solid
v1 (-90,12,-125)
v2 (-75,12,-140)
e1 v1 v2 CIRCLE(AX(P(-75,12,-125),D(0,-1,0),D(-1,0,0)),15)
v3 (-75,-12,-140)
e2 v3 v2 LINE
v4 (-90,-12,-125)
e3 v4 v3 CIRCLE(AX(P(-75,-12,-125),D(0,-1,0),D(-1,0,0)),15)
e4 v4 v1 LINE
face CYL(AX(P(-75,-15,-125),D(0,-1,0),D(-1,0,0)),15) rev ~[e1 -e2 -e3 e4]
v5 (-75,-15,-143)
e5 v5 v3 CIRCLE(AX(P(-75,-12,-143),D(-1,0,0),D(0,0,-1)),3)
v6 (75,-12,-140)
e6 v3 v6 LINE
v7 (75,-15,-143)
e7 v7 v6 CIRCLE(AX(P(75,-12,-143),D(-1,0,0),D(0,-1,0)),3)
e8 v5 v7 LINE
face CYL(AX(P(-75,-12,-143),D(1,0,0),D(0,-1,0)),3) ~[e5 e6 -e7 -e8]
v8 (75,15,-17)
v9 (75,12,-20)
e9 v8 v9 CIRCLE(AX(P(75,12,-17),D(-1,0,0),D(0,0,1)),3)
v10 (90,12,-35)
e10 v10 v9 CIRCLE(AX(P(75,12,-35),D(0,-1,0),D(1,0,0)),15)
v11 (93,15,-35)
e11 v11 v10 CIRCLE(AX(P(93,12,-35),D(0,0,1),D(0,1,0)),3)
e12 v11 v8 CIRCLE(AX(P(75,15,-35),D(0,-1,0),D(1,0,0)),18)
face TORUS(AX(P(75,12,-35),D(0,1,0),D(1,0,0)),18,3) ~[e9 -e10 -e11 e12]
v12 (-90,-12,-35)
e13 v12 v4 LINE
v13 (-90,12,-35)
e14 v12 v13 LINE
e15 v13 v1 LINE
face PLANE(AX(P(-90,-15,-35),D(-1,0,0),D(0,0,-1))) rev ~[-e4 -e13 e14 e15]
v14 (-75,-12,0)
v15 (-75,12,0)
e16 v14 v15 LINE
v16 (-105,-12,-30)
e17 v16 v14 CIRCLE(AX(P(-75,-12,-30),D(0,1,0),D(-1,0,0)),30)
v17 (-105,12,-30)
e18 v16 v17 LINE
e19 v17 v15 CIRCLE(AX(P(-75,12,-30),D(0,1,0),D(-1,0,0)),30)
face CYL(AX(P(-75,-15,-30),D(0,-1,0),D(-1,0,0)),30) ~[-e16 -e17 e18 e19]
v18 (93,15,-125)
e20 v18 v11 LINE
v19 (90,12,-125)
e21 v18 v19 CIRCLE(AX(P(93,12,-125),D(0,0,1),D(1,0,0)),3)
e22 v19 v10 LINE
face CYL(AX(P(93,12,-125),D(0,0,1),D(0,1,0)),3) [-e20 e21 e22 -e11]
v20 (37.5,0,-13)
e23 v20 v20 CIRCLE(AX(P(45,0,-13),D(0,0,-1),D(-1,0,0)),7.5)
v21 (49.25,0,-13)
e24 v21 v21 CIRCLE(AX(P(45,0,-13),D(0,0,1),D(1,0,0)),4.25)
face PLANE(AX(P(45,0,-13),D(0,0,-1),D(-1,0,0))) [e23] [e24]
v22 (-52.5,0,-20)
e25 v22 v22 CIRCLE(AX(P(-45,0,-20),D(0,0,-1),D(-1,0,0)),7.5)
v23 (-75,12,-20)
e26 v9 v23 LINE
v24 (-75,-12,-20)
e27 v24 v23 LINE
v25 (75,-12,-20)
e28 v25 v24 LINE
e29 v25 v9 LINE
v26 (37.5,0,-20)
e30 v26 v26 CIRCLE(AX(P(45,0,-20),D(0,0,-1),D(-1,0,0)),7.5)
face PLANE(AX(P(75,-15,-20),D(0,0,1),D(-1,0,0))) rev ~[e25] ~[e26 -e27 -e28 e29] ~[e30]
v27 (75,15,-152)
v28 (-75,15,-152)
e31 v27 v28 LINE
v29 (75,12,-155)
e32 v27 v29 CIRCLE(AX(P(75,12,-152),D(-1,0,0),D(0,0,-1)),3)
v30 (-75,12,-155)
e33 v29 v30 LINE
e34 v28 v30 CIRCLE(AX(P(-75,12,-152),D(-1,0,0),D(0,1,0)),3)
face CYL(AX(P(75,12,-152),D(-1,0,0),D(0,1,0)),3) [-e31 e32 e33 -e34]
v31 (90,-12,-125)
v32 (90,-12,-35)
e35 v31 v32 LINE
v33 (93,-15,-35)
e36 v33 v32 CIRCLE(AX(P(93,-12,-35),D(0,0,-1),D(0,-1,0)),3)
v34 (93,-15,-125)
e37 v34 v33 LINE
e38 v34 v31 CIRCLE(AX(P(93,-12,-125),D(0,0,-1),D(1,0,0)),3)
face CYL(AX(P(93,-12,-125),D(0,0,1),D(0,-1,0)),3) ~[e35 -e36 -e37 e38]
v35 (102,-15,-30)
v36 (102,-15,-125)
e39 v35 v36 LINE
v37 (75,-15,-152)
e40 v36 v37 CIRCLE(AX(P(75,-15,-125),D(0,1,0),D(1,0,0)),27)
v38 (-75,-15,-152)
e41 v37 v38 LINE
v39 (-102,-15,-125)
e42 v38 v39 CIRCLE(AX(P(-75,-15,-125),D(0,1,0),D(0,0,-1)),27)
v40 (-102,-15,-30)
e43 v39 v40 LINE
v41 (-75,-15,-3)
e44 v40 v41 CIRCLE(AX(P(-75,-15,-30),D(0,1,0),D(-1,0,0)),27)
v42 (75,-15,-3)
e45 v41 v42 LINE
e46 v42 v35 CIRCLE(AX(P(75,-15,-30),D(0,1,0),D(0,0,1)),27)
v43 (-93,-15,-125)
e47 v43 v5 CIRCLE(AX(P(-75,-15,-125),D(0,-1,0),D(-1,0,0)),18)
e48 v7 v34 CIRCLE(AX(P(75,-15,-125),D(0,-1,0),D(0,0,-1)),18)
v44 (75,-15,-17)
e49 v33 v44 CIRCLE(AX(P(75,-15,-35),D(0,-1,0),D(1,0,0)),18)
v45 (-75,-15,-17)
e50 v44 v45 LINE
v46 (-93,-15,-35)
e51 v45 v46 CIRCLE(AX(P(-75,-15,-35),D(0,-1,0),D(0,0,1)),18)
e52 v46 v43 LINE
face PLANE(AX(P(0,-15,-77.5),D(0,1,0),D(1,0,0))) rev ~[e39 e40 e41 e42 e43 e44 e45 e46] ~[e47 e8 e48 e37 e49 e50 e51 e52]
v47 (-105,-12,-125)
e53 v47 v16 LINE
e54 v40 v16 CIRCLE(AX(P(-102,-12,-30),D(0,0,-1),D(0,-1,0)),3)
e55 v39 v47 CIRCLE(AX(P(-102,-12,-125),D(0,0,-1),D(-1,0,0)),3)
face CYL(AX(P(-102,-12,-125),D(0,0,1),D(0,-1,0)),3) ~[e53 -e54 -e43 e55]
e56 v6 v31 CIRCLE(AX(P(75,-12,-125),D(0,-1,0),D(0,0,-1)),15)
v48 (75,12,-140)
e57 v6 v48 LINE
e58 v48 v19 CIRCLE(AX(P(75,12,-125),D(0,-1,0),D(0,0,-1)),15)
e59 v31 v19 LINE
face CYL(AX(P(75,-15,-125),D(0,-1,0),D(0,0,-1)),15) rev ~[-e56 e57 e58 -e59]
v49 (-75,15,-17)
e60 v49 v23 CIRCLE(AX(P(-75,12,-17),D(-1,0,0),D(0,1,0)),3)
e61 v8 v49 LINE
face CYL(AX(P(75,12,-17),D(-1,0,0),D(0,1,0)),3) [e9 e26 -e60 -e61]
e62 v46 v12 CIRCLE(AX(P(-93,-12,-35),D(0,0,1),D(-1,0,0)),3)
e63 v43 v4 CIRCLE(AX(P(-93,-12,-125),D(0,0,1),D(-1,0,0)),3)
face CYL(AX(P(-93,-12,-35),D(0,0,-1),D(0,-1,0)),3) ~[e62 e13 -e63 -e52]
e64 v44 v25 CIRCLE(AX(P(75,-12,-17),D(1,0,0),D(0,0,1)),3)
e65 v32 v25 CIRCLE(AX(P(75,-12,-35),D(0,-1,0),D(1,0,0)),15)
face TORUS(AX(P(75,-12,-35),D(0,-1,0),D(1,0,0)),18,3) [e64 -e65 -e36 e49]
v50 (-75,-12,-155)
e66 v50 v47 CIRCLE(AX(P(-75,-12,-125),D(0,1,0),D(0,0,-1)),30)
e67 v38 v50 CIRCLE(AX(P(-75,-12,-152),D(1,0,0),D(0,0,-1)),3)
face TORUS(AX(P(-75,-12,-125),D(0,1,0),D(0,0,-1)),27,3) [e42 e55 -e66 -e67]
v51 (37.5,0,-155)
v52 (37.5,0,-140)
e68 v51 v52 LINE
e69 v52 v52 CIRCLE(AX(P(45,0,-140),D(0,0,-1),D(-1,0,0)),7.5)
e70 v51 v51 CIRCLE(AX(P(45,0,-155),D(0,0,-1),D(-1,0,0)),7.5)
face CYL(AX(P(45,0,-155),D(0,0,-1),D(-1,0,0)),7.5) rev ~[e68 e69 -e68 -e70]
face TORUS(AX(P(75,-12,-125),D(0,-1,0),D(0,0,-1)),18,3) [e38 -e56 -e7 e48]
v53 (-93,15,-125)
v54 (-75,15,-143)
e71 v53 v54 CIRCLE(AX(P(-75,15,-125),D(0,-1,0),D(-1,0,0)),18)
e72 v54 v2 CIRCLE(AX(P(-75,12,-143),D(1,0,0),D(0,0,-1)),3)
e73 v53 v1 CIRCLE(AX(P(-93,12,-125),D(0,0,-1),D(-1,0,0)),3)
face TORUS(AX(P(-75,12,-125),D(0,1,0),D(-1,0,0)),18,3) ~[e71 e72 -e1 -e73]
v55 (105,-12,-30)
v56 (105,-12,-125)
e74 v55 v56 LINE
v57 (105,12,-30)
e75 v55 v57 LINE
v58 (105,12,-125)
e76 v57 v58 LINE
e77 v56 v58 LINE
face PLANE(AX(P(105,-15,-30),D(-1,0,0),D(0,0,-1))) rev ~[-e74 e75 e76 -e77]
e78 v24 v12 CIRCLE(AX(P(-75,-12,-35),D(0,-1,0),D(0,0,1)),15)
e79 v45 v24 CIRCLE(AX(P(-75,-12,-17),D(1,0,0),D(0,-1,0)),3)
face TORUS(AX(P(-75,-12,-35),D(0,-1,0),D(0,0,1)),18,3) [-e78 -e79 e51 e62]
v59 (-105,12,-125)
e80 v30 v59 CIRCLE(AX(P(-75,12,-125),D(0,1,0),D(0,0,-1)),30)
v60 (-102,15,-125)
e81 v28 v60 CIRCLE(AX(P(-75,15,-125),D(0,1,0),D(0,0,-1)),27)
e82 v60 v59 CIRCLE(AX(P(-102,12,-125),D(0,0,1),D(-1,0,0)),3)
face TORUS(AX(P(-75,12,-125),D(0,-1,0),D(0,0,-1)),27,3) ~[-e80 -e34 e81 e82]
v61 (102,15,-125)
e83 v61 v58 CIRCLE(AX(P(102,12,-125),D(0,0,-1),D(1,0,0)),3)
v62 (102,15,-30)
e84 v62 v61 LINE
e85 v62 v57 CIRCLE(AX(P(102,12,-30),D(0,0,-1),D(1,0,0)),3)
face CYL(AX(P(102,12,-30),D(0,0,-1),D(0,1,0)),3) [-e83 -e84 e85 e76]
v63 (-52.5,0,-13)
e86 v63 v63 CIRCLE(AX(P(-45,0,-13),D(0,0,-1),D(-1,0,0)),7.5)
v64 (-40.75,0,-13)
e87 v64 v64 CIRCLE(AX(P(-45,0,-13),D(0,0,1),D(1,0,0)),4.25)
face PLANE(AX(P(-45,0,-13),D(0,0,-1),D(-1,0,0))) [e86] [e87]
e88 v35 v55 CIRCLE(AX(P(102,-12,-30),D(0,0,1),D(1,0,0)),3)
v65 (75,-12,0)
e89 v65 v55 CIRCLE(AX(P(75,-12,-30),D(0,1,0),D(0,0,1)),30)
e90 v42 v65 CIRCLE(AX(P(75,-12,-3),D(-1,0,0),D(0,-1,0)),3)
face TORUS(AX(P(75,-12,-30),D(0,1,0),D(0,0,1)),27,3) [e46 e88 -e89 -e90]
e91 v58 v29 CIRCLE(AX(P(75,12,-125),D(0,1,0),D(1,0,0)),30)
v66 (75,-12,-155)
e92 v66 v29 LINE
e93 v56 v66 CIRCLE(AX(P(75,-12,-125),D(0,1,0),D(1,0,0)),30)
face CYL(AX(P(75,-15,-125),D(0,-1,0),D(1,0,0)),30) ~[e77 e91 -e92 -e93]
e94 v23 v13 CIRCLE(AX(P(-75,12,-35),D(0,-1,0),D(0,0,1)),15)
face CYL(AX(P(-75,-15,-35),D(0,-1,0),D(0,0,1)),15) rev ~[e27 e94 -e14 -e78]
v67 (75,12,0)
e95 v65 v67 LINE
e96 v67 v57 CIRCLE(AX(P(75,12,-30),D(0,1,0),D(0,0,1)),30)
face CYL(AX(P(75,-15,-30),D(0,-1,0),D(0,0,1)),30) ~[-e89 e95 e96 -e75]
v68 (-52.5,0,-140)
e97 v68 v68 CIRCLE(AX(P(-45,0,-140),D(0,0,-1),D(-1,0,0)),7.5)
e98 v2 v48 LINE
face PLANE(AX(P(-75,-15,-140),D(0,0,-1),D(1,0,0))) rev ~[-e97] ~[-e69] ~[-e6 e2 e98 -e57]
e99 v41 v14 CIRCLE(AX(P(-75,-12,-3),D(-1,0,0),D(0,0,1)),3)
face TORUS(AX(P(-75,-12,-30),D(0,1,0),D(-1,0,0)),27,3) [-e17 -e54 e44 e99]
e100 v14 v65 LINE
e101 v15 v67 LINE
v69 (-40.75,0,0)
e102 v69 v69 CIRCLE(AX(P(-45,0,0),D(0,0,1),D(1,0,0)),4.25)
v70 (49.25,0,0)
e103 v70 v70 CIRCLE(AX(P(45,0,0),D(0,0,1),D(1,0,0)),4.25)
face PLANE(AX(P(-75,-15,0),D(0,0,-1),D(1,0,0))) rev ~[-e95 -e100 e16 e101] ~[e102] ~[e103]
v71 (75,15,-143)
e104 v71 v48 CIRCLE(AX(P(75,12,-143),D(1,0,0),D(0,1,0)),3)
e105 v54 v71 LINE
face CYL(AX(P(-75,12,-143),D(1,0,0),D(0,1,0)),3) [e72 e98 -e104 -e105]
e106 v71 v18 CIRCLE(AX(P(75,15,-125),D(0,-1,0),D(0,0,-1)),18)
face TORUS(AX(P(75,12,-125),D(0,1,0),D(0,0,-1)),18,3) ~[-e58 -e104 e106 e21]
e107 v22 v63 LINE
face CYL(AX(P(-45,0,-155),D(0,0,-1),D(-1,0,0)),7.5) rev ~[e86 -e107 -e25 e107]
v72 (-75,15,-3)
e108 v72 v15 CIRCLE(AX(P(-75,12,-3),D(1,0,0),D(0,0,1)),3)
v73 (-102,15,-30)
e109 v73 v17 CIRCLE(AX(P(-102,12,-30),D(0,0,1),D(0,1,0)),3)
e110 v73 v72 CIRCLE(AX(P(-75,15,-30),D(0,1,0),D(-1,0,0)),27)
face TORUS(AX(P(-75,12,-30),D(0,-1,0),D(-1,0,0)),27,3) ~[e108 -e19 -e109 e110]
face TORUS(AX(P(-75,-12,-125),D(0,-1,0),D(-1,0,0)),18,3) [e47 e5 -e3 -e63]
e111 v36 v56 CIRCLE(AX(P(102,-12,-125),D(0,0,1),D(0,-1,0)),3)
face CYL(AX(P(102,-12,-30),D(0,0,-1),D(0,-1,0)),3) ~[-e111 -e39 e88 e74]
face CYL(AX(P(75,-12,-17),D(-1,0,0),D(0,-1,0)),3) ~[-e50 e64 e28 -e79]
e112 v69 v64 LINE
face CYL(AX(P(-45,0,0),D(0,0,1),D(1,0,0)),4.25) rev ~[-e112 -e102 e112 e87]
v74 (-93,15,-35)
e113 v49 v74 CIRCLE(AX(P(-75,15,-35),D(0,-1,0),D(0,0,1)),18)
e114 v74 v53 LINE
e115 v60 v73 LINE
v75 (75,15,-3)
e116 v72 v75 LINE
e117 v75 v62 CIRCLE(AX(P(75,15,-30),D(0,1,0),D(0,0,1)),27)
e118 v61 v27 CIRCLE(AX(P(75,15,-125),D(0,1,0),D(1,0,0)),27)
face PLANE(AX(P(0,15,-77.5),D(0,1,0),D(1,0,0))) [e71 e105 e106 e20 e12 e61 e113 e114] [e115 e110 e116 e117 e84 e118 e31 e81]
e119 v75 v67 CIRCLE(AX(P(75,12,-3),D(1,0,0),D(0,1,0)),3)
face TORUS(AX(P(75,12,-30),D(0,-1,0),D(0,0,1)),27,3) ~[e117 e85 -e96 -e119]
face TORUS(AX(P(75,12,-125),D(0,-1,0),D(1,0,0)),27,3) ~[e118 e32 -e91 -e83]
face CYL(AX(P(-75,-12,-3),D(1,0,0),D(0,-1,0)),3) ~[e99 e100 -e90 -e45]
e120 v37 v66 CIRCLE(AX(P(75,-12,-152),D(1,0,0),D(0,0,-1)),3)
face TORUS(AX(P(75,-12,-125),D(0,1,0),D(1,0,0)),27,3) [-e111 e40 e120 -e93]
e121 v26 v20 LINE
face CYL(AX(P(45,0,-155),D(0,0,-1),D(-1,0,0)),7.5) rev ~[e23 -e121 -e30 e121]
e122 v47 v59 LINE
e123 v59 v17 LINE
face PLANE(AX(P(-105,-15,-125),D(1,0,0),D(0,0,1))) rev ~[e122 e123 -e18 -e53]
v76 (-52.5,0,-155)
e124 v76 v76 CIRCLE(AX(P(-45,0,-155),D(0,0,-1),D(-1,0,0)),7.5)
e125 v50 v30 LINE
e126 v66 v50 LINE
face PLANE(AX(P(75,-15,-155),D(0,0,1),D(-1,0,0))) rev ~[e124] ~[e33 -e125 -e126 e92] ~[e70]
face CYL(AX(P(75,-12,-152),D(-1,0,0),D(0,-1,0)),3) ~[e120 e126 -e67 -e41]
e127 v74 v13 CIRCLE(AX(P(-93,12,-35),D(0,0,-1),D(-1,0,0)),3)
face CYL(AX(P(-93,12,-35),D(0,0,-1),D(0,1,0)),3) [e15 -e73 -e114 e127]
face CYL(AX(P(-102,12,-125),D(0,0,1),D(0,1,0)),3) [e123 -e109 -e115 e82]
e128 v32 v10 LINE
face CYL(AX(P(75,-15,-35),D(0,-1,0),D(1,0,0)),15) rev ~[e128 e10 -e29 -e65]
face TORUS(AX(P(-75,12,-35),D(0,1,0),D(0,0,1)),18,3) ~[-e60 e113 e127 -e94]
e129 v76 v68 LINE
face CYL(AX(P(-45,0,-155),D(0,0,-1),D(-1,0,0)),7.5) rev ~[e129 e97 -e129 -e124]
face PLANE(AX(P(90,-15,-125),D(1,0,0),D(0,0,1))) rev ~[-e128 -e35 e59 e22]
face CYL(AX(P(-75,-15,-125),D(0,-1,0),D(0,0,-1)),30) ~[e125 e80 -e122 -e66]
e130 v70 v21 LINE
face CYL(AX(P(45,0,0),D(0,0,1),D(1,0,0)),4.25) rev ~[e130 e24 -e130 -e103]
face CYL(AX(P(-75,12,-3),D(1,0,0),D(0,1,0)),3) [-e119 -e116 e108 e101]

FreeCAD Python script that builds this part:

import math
import FreeCAD as App
import Part
import Sketcher
from FreeCAD import Vector
Q = App.Units.Quantity


def edges_at(feature, points):
    """Names of the edges that pass closest to the given points."""
    edges = feature.Shape.Edges
    near = lambda p: min(range(len(edges)), key=lambda i: edges[i].distToShape(Part.Vertex(*p))[0])
    return sorted({f"Edge{near(p) + 1}" for p in points})

doc = App.newDocument("Part")
body = doc.addObject("PartDesign::Body", "Body")

# Sketch on XZ plane
sketch1 = body.newObject("Sketcher::SketchObject", "Sketch")
sketch1.AttachmentSupport = (doc.getObject("XZ_Plane"), [""])
sketch1.MapMode = "FlatFace"
sketch1.addGeometry(Part.LineSegment(Vector(-75, 0, 0), Vector(75, 0, 0)), False)
sketch1.addGeometry(Part.ArcOfCircle(Part.Circle(Vector(75, -30, 0), Vector(0, 0, 1), 30), math.radians(0), math.radians(90)), False)
sketch1.addGeometry(Part.LineSegment(Vector(105, -30, 0), Vector(105, -125, 0)), False)
sketch1.addGeometry(Part.ArcOfCircle(Part.Circle(Vector(75, -125, 0), Vector(0, 0, 1), 30), math.radians(-90), math.radians(0)), False)
sketch1.addGeometry(Part.LineSegment(Vector(75, -155, 0), Vector(-75, -155, 0)), False)
sketch1.addGeometry(Part.ArcOfCircle(Part.Circle(Vector(-75, -125, 0), Vector(0, 0, 1), 30), math.radians(180), math.radians(270)), False)
sketch1.addGeometry(Part.LineSegment(Vector(-105, -125, 0), Vector(-105, -30, 0)), False)
sketch1.addGeometry(Part.ArcOfCircle(Part.Circle(Vector(-75, -30, 0), Vector(0, 0, 1), 30), math.radians(90), math.radians(180)), False)
sketch1.addGeometry(Part.ArcOfCircle(Part.Circle(Vector(-75, -125, 0), Vector(0, 0, 1), 15), math.radians(180), math.radians(270)), False)
sketch1.addGeometry(Part.LineSegment(Vector(-75, -140, 0), Vector(75, -140, 0)), False)
sketch1.addGeometry(Part.ArcOfCircle(Part.Circle(Vector(75, -125, 0), Vector(0, 0, 1), 15), math.radians(-90), math.radians(0)), False)
sketch1.addGeometry(Part.LineSegment(Vector(90, -125, 0), Vector(90, -35, 0)), False)
sketch1.addGeometry(Part.ArcOfCircle(Part.Circle(Vector(75, -35, 0), Vector(0, 0, 1), 15), math.radians(0), math.radians(90)), False)
sketch1.addGeometry(Part.LineSegment(Vector(75, -20, 0), Vector(-75, -20, 0)), False)
sketch1.addGeometry(Part.ArcOfCircle(Part.Circle(Vector(-75, -35, 0), Vector(0, 0, 1), 15), math.radians(90), math.radians(180)), False)
sketch1.addGeometry(Part.LineSegment(Vector(-90, -35, 0), Vector(-90, -125, 0)), False)
sketch1.addConstraint(Sketcher.Constraint("Tangent", 0, 2, 1, 2))
sketch1.addConstraint(Sketcher.Constraint("Tangent", 1, 1, 2, 1))
sketch1.addConstraint(Sketcher.Constraint("Tangent", 2, 2, 3, 2))
sketch1.addConstraint(Sketcher.Constraint("Tangent", 3, 1, 4, 1))
sketch1.addConstraint(Sketcher.Constraint("Tangent", 4, 2, 5, 2))
sketch1.addConstraint(Sketcher.Constraint("Tangent", 5, 1, 6, 1))
sketch1.addConstraint(Sketcher.Constraint("Tangent", 6, 2, 7, 2))
sketch1.addConstraint(Sketcher.Constraint("Tangent", 7, 1, 0, 1))
sketch1.addConstraint(Sketcher.Constraint("Tangent", 8, 2, 9, 1))
sketch1.addConstraint(Sketcher.Constraint("Tangent", 9, 2, 10, 1))
sketch1.addConstraint(Sketcher.Constraint("Tangent", 10, 2, 11, 1))
sketch1.addConstraint(Sketcher.Constraint("Tangent", 11, 2, 12, 1))
sketch1.addConstraint(Sketcher.Constraint("Tangent", 12, 2, 13, 1))
sketch1.addConstraint(Sketcher.Constraint("Tangent", 13, 2, 14, 1))
sketch1.addConstraint(Sketcher.Constraint("Tangent", 14, 2, 15, 1))
sketch1.addConstraint(Sketcher.Constraint("Tangent", 15, 2, 8, 1))
sketch1.addConstraint(Sketcher.Constraint("Horizontal", 0))
sketch1.addConstraint(Sketcher.Constraint("Vertical", 2))
sketch1.addConstraint(Sketcher.Constraint("Horizontal", 4))
sketch1.addConstraint(Sketcher.Constraint("Vertical", 6))
sketch1.addConstraint(Sketcher.Constraint("Horizontal", 9))
sketch1.addConstraint(Sketcher.Constraint("Vertical", 11))
sketch1.addConstraint(Sketcher.Constraint("Horizontal", 13))
sketch1.addConstraint(Sketcher.Constraint("Vertical", 15))
sketch1.addConstraint(Sketcher.Constraint("Coincident", 8, 3, 5, 3))
sketch1.addConstraint(Sketcher.Constraint("Coincident", 10, 3, 3, 3))
sketch1.addConstraint(Sketcher.Constraint("Equal", 1, 3))
sketch1.addConstraint(Sketcher.Constraint("Equal", 3, 5))
sketch1.addConstraint(Sketcher.Constraint("Equal", 5, 7))
sketch1.addConstraint(Sketcher.Constraint("Equal", 10, 12))
sketch1.addConstraint(Sketcher.Constraint("Equal", 12, 14))
sketch1.addConstraint(Sketcher.Constraint("Symmetric", 0, 2, 7, 1, -1, 1))
sketch1.addConstraint(Sketcher.Constraint("Radius", 1, Q("30 mm")))
sketch1.addConstraint(Sketcher.Constraint("Radius", 8, Q("15 mm")))
sketch1.addConstraint(Sketcher.Constraint("DistanceX", 0, 1, 0, 2, Q("150 mm")))
sketch1.addConstraint(Sketcher.Constraint("DistanceY", 2, 2, 2, 1, Q("95 mm")))
sketch1.addConstraint(Sketcher.Constraint("DistanceY", 11, 1, 11, 2, Q("90 mm")))
pad1 = body.newObject("PartDesign::Pad", "Pad")
pad1.Profile = sketch1
pad1.Type = "TwoLengths"
pad1.Length = 15
pad1.Length2 = 15
pad1.Reversed = True

# Sketch on XY plane
sketch2 = body.newObject("Sketcher::SketchObject", "Sketch001")
sketch2.AttachmentSupport = (doc.getObject("XY_Plane"), [""])
sketch2.MapMode = "FlatFace"
sketch2.addGeometry(Part.Circle(Vector(45, 0, 0), Vector(0, 0, 1), 4.2), False)
sketch2.addGeometry(Part.Circle(Vector(-45, 0, 0), Vector(0, 0, 1), 4.2), False)
sketch2.addConstraint(Sketcher.Constraint("Equal", 0, 1))
sketch2.addConstraint(Sketcher.Constraint("Symmetric", 0, 3, 1, 3, -1, 1))
sketch2.addConstraint(Sketcher.Constraint("PointOnObject", 0, 3, -1))
sketch2.addConstraint(Sketcher.Constraint("Diameter", 0, Q("8.5 mm")))
sketch2.addConstraint(Sketcher.Constraint("DistanceX", -1, 1, 0, 3, Q("45 mm")))
pocket1 = body.newObject("PartDesign::Pocket", "Pocket")
pocket1.Profile = sketch2
pocket1.Length = 120

# Sketch on XY plane
sketch3 = body.newObject("Sketcher::SketchObject", "Sketch002")
sketch3.AttachmentSupport = (doc.getObject("XY_Plane"), [""])
sketch3.MapMode = "FlatFace"
sketch3.AttachmentOffset = App.Placement(Vector(0, 0, -155), App.Rotation())
sketch3.addGeometry(Part.Circle(Vector(-45, 0, 0), Vector(0, 0, 1), 8), False)
sketch3.addGeometry(Part.Circle(Vector(45, 0, 0), Vector(0, 0, 1), 8), False)
sketch3.addConstraint(Sketcher.Constraint("Equal", 0, 1))
sketch3.addConstraint(Sketcher.Constraint("Symmetric", 0, 3, 1, 3, -1, 1))
sketch3.addConstraint(Sketcher.Constraint("PointOnObject", 0, 3, -1))
sketch3.addConstraint(Sketcher.Constraint("Diameter", 0, Q("15 mm")))
sketch3.addConstraint(Sketcher.Constraint("DistanceX", 0, 3, -1, 1, Q("45 mm")))
pocket2 = body.newObject("PartDesign::Pocket", "Pocket001")
pocket2.Profile = sketch3
pocket2.Length = 142
pocket2.Reversed = True
doc.recompute()

fillet = body.newObject("PartDesign::Fillet", "Fillet")
fillet.Base = (pocket2, edges_at(pocket2, [
    (-96.213, -15, -146.213),
    (-105, -15, -77.5),
    (-96.213, -15, -8.787),
    (0, -15, 0),
    (-85.607, -15, -135.607),
    (0, -15, -140),
    (85.607, -15, -135.607),
    (90, -15, -80),
    (96.213, -15, -8.787),
    (85.607, -15, -24.393),
    (0, -15, -20),
    (-85.607, -15, -24.393),
    (-90, -15, -80),
    (105, -15, -77.5),
    (96.213, 15, -146.213),
    (0, 15, -155),
    (-96.213, 15, -146.213),
    (-105, 15, -77.5),
    (-96.213, 15, -8.787),
    (0, 15, 0),
    (96.213, 15, -8.787),
    (105, 15, -77.5),
    (96.213, -15, -146.213),
    (-85.607, 15, -135.607),
    (-90, 15, -80),
    (-85.607, 15, -24.393),
    (0, 15, -20),
    (85.607, 15, -24.393),
    (90, 15, -80),
    (85.607, 15, -135.607),
    (0, 15, -140),
    (0, -15, -155),
]))
fillet.Radius = 3

doc.recompute()
